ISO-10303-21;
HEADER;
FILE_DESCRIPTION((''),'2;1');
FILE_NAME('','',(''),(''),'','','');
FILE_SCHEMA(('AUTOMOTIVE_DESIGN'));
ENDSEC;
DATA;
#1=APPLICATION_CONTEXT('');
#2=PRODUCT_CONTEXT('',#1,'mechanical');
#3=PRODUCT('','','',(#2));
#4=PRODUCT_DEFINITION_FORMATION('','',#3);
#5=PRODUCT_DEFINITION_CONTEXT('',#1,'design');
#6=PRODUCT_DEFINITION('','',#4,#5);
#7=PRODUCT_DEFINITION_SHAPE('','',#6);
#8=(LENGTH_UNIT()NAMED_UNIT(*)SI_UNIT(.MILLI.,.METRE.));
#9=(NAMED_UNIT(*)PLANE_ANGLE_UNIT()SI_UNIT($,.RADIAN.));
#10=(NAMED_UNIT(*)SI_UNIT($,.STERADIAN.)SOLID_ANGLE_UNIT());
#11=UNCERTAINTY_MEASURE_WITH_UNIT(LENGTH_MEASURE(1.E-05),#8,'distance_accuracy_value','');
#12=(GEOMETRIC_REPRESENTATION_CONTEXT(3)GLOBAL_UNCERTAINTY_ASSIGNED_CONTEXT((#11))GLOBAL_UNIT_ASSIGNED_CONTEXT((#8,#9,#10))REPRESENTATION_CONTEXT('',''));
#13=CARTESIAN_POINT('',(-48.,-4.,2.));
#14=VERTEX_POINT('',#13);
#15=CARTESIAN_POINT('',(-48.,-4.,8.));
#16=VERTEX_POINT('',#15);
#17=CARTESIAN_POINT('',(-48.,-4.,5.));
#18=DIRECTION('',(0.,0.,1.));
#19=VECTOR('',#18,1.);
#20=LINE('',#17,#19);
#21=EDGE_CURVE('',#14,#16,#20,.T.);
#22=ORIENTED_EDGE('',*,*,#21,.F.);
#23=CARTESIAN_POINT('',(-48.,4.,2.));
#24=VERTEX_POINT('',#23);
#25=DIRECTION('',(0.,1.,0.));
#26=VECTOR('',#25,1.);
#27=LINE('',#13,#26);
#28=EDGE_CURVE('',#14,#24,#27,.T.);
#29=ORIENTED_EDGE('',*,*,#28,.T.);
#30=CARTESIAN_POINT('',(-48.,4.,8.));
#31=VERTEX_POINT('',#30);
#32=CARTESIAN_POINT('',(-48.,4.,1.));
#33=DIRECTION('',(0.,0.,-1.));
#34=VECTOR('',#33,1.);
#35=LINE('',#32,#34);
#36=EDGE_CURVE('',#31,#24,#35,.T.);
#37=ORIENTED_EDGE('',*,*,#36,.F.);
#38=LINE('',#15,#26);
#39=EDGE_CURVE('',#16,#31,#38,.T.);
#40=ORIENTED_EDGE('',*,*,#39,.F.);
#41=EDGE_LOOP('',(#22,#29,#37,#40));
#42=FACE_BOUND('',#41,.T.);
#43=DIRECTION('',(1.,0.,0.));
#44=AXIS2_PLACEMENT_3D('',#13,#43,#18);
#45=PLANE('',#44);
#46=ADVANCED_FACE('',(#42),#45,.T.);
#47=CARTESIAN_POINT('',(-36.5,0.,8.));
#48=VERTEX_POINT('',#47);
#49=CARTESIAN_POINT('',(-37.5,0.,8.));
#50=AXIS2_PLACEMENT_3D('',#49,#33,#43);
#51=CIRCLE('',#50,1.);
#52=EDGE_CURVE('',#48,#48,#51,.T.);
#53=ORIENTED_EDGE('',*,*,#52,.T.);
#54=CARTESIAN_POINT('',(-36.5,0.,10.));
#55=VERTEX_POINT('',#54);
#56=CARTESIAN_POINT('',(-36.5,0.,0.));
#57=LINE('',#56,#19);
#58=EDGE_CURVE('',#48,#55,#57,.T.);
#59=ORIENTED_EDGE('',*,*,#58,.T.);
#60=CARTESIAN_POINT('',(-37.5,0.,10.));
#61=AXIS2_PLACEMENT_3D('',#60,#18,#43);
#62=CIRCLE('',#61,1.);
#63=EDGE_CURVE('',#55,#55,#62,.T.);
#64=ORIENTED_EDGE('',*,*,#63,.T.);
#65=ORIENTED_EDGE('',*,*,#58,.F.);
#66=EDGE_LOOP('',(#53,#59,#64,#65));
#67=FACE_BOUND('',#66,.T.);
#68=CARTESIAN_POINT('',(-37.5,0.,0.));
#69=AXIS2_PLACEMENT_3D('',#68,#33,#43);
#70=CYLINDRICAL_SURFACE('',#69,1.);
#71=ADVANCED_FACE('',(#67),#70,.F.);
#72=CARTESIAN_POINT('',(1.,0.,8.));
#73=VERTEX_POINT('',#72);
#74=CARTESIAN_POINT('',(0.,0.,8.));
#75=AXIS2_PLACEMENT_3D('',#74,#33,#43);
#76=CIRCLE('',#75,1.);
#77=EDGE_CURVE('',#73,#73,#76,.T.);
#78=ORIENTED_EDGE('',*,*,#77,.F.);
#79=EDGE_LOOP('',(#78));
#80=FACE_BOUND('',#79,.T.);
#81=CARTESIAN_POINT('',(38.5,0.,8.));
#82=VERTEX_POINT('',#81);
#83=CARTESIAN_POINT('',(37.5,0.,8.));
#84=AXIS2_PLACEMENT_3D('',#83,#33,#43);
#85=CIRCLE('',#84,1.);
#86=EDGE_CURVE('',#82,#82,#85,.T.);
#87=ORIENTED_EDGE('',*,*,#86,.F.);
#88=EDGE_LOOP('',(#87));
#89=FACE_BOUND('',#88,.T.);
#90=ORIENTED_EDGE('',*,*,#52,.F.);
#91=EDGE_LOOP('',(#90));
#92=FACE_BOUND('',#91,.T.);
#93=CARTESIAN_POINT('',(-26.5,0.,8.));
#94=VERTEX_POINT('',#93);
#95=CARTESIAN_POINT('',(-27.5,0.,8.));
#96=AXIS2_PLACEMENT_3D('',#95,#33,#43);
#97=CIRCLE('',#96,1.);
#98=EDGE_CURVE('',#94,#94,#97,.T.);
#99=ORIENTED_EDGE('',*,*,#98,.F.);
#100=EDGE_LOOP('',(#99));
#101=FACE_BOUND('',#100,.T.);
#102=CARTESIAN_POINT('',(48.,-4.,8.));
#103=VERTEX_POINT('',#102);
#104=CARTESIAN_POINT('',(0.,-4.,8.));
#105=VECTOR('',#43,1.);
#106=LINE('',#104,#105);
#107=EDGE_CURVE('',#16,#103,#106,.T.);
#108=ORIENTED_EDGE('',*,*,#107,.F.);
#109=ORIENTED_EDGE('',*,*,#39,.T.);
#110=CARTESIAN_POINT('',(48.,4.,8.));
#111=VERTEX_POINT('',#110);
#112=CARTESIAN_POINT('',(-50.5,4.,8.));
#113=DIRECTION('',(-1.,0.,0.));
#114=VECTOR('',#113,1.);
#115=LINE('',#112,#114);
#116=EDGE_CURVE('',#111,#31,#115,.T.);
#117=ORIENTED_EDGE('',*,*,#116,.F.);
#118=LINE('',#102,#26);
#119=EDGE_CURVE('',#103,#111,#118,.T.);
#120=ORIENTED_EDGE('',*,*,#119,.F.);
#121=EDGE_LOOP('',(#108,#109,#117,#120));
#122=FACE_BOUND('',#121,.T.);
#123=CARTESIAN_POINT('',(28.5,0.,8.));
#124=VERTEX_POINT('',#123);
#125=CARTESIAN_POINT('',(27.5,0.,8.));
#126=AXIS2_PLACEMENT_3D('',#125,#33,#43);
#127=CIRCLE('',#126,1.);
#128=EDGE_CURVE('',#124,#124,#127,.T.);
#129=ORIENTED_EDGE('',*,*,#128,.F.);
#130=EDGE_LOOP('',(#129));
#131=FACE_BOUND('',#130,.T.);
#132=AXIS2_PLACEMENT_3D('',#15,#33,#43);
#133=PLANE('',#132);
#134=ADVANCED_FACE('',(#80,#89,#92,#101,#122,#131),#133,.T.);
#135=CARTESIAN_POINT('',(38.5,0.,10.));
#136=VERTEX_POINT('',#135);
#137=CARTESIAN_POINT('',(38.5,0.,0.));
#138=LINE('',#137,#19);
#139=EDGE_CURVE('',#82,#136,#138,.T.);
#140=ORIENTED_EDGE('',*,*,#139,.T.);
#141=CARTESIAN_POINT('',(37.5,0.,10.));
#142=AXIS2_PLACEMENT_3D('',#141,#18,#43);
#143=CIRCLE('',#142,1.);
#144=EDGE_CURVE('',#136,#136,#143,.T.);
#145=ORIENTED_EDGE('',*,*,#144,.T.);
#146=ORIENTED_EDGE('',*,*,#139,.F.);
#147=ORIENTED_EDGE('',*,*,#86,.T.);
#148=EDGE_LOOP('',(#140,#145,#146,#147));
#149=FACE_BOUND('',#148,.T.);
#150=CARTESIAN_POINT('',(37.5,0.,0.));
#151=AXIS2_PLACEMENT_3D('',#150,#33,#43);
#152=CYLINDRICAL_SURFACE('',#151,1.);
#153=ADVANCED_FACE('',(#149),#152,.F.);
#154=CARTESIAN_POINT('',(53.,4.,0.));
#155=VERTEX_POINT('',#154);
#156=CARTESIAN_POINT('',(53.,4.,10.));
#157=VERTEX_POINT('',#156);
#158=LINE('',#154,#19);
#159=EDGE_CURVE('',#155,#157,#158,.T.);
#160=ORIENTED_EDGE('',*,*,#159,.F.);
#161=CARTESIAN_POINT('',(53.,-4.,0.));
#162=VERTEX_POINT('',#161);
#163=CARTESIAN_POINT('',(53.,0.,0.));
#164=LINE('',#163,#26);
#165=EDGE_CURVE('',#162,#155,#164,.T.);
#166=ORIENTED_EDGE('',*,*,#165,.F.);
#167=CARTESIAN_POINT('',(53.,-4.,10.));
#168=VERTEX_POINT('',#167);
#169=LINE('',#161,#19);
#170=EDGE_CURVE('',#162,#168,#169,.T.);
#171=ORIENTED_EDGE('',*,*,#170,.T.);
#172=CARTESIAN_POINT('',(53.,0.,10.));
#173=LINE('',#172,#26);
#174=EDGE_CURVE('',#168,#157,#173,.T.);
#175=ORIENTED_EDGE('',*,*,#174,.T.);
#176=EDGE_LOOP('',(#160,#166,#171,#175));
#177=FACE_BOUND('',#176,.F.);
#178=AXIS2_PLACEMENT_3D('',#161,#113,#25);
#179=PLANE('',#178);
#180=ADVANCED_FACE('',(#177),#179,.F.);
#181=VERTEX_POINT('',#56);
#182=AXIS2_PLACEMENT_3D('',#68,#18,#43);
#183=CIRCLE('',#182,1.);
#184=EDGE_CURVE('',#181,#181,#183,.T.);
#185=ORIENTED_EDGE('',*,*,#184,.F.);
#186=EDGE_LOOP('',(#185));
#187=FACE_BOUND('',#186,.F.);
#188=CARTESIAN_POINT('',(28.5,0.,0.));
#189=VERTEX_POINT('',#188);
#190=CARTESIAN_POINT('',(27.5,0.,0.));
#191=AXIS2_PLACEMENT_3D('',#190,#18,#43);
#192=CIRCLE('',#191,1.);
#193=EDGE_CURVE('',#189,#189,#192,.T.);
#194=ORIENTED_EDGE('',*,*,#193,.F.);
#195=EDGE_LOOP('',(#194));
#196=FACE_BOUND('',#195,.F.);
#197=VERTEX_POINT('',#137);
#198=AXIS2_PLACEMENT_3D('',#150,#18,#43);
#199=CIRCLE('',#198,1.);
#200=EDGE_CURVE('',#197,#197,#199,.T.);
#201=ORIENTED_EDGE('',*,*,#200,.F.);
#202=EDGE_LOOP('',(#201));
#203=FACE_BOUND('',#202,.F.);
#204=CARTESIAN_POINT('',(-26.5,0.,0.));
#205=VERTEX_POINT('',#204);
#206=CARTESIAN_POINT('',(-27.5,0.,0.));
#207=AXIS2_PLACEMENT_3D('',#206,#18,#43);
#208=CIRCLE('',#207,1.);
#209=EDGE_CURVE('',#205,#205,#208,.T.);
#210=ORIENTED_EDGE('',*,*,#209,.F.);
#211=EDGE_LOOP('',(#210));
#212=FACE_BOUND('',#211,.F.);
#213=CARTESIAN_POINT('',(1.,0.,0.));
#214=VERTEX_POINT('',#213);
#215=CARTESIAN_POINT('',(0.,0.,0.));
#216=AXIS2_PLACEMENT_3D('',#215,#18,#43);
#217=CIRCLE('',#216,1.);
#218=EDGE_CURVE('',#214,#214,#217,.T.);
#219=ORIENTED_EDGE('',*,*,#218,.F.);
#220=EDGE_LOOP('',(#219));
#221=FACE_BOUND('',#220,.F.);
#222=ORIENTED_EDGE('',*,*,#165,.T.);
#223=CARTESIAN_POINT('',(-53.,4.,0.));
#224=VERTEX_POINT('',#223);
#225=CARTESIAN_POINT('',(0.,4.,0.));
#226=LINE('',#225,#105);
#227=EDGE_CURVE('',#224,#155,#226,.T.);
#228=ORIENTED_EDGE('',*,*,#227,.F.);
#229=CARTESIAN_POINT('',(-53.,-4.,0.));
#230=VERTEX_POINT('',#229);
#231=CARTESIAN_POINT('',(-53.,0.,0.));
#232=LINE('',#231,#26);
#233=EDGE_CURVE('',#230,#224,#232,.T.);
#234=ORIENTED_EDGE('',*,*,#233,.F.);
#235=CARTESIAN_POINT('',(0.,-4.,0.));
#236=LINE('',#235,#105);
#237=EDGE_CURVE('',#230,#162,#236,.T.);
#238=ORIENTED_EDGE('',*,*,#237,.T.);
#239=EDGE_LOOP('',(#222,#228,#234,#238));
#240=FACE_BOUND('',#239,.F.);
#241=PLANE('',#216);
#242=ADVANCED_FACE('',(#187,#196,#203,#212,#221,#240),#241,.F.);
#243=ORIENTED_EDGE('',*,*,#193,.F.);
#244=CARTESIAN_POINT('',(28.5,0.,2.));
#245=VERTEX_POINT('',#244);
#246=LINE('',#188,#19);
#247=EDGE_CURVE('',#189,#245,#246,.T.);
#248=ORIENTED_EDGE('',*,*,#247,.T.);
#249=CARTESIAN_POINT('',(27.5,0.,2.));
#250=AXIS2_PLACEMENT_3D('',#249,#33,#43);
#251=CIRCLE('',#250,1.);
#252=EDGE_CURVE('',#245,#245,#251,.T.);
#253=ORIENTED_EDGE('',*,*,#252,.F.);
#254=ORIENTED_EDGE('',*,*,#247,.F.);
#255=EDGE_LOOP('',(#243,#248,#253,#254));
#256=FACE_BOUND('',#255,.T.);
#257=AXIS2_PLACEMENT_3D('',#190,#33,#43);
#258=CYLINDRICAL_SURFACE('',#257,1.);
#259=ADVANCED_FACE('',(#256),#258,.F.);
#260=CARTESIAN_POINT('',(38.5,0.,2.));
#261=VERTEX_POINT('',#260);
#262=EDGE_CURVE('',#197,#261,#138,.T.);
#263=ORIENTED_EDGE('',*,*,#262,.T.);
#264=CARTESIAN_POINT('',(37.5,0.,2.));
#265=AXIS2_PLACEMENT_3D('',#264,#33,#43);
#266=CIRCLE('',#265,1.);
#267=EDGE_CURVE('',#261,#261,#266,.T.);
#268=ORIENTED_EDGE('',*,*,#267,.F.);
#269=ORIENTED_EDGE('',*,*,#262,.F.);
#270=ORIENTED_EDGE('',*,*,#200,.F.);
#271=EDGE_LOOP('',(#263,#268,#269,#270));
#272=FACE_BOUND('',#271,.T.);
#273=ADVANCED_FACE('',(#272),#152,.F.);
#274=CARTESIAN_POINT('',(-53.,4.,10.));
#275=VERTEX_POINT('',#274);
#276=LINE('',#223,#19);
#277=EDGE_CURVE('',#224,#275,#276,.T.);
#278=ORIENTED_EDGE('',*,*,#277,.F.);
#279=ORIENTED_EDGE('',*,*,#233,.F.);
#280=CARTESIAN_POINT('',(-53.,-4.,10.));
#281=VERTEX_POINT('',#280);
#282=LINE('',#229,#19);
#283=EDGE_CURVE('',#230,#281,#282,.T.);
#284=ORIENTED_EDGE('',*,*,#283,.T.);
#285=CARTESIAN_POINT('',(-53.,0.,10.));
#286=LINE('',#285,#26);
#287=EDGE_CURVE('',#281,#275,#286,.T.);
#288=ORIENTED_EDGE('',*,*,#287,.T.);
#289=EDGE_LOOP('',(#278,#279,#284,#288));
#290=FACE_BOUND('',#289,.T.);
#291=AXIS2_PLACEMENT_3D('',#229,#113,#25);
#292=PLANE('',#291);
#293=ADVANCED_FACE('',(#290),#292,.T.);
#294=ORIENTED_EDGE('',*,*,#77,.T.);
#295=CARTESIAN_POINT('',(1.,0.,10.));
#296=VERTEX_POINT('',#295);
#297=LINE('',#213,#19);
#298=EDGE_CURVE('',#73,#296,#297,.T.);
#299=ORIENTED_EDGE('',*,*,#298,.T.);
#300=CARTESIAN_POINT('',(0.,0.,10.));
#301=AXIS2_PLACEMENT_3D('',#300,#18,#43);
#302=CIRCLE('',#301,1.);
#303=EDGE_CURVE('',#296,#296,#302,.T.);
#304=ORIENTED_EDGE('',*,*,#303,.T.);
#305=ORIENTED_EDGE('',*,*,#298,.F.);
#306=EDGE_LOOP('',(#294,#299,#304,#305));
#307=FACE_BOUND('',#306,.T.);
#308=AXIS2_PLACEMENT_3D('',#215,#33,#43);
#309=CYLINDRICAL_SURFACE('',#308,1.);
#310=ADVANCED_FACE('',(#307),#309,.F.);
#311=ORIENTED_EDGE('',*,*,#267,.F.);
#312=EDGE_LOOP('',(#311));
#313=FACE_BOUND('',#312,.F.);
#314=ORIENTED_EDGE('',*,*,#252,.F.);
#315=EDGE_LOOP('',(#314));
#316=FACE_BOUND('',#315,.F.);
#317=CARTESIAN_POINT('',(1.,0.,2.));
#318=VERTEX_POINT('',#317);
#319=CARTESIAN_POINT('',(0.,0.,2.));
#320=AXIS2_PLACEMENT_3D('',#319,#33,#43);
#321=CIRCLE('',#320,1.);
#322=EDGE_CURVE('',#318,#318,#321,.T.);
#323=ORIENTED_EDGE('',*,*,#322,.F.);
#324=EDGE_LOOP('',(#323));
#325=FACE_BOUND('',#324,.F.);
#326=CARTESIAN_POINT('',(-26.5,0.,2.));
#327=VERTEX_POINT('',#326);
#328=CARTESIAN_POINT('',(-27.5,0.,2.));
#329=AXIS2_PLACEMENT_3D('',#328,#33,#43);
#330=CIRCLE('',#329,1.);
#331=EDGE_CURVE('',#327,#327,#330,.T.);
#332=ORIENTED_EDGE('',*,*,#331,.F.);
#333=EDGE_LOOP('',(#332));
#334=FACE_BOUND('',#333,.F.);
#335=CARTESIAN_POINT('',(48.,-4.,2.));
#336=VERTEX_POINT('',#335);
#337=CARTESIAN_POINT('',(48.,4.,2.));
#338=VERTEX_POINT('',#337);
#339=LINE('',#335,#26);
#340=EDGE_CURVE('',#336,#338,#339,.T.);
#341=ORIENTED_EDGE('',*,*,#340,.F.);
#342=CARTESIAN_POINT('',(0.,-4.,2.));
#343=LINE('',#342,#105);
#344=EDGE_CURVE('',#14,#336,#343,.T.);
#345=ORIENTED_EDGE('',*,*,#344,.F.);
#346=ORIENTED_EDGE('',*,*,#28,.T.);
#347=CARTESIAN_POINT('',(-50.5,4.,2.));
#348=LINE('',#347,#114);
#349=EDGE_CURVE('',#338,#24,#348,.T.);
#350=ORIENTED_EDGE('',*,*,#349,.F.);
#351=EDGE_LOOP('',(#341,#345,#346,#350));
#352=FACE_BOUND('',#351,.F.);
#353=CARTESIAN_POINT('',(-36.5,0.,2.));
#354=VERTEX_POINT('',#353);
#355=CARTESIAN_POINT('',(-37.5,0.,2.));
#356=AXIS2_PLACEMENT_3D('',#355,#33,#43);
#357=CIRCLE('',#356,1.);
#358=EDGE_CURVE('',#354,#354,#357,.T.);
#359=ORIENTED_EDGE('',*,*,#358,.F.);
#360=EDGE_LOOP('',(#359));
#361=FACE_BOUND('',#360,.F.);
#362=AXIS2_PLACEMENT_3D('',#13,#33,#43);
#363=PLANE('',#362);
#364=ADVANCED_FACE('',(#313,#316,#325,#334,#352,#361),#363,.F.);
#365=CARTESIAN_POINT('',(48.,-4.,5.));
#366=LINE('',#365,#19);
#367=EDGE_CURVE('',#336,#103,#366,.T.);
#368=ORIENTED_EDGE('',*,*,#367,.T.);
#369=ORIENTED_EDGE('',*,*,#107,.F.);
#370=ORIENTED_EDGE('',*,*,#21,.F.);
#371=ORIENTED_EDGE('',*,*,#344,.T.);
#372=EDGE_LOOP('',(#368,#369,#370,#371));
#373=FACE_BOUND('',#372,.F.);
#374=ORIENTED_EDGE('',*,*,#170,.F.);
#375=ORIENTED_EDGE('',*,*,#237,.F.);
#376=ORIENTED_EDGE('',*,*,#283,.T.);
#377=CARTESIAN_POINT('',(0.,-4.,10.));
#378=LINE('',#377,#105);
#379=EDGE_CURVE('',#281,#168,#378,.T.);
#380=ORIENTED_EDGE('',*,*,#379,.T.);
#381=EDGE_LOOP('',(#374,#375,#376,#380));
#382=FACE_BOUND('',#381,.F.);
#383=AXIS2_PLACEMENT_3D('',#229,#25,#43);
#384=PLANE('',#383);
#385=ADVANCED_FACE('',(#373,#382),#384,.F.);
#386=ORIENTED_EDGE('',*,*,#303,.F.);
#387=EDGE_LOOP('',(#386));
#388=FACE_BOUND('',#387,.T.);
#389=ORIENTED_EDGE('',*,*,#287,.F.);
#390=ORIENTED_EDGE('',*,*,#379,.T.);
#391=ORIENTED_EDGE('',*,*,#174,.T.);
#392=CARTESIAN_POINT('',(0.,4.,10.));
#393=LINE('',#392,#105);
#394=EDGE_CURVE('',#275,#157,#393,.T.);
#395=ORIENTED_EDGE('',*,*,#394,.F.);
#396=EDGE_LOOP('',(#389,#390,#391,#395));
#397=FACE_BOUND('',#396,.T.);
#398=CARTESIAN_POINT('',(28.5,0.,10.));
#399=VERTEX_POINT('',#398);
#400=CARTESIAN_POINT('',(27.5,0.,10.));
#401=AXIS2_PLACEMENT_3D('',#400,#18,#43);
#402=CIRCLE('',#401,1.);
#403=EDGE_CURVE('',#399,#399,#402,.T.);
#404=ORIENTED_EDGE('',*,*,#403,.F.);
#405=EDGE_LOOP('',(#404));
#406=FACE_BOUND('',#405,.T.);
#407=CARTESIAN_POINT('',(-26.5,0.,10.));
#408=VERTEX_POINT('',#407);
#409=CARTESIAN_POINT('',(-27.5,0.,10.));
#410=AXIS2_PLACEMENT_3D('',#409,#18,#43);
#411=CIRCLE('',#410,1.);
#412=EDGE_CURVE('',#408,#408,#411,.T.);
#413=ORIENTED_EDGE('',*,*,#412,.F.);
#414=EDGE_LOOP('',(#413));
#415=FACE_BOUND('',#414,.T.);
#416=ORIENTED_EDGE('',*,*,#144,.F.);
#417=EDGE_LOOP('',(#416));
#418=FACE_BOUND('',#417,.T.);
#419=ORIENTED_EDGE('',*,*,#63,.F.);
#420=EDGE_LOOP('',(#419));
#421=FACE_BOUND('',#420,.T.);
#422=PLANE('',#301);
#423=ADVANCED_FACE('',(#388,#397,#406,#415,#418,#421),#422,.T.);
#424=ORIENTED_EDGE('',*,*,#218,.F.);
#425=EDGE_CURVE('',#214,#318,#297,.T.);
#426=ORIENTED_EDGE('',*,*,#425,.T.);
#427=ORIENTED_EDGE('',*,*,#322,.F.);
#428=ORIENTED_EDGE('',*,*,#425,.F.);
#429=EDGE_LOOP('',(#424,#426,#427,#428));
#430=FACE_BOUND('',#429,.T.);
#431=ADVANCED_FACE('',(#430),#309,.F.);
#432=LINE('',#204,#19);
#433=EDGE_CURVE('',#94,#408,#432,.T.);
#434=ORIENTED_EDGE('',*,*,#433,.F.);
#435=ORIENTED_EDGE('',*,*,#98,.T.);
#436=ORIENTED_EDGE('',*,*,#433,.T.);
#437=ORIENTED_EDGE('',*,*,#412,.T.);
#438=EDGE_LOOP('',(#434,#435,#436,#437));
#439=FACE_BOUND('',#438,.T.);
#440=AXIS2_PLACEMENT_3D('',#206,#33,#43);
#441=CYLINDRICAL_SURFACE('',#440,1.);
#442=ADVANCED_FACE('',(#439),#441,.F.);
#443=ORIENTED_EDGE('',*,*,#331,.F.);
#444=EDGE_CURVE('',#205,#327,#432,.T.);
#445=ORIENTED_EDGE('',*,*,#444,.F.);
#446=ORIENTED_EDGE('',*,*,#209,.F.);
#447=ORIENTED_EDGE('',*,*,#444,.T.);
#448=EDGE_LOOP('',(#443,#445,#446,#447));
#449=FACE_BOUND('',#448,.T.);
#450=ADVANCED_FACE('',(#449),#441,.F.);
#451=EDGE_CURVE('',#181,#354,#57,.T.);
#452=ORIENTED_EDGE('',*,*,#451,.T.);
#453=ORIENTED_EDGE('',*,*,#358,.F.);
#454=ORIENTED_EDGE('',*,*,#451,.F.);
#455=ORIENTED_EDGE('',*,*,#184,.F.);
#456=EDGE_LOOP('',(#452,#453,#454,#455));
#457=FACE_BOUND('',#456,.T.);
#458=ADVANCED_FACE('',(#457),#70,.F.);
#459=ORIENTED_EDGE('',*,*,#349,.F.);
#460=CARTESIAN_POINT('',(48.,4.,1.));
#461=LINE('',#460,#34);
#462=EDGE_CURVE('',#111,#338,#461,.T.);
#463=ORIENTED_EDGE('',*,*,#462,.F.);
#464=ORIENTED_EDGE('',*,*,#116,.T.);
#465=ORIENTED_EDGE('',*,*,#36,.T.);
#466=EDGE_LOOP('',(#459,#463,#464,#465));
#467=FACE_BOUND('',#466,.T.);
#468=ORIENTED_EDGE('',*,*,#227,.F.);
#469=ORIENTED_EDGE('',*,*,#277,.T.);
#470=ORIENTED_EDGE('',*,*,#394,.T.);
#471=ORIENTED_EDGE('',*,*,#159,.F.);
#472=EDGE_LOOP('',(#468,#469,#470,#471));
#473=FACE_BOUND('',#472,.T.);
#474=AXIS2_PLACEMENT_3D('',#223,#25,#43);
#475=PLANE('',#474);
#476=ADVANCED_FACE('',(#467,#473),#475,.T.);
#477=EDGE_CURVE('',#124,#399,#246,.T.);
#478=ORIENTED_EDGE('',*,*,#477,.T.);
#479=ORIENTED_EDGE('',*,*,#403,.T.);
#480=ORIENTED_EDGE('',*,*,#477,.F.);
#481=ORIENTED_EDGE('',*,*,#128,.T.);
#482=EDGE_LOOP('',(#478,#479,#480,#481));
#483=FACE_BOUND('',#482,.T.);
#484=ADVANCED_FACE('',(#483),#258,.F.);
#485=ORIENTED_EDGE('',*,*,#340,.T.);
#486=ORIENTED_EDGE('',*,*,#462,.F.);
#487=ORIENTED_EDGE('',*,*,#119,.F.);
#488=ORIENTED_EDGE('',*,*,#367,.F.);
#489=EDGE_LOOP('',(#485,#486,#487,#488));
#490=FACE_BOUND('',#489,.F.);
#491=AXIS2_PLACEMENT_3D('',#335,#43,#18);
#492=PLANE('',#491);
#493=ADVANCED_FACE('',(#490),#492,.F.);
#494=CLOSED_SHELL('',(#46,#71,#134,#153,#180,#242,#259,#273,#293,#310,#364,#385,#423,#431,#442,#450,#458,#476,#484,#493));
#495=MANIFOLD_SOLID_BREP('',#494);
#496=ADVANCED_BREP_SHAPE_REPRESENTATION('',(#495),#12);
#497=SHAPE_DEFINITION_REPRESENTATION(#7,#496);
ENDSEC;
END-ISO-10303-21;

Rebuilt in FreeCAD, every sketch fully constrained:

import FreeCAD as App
import Part
import Sketcher

doc = App.newDocument("Part")
body = doc.addObject("PartDesign::Body", "Body")

# Sketch on XY plane
sketch1 = body.newObject("Sketcher::SketchObject", "Sketch")
sketch1.AttachmentSupport = (doc.getObject("XY_Plane"), [""])
sketch1.MapMode = "FlatFace"
sketch1.addGeometry([
    Part.LineSegment(App.Vector(-53, 4, 0), App.Vector(-53, -4, 0)),  # 0
    Part.LineSegment(App.Vector(-53, -4, 0), App.Vector(53, -4, 0)),  # 1
    Part.LineSegment(App.Vector(53, -4, 0), App.Vector(53, 4, 0)),  # 2
    Part.LineSegment(App.Vector(53, 4, 0), App.Vector(-53, 4, 0)),  # 3
    Part.Circle(App.Vector(-37.5, 0, 0), App.Vector(0, 0, 1), 1),  # 4
    Part.Circle(App.Vector(-27.5, 0, 0), App.Vector(0, 0, 1), 1),  # 5
    Part.Circle(App.Vector(0, 0, 0), App.Vector(0, 0, 1), 1),  # 6
    Part.Circle(App.Vector(27.5, 0, 0), App.Vector(0, 0, 1), 1),  # 7
    Part.Circle(App.Vector(37.5, 0, 0), App.Vector(0, 0, 1), 1),  # 8
], False)
sketch1.addConstraint([
    Sketcher.Constraint("Coincident", 0, 2, 1, 1),
    Sketcher.Constraint("Coincident", 1, 2, 2, 1),
    Sketcher.Constraint("Coincident", 2, 2, 3, 1),
    Sketcher.Constraint("Coincident", 3, 2, 0, 1),
    Sketcher.Constraint("Vertical", 0),
    Sketcher.Constraint("Horizontal", 1),
    Sketcher.Constraint("Vertical", 2),
    Sketcher.Constraint("Horizontal", 3),
    Sketcher.Constraint("Coincident", 6, 3, -1, 1),
    Sketcher.Constraint("Equal", 4, 5),
    Sketcher.Constraint("Equal", 5, 6),
    Sketcher.Constraint("Equal", 6, 7),
    Sketcher.Constraint("Equal", 7, 8),
    Sketcher.Constraint("Symmetric", 5, 3, 7, 3, -1, 1),
    Sketcher.Constraint("Symmetric", 4, 3, 8, 3, -1, 1),
    Sketcher.Constraint("Symmetric", 0, 2, 2, 2, -1, 1),
    Sketcher.Constraint("PointOnObject", 4, 3, -1),
    Sketcher.Constraint("PointOnObject", 5, 3, -1),
    Sketcher.Constraint("Diameter", 4, 2.0),
    Sketcher.Constraint("DistanceX", 1, 1, 1, 2, 106.0),
    Sketcher.Constraint("DistanceY", 0, 2, 0, 1, 8.0),
    Sketcher.Constraint("DistanceX", 4, 3, 5, 3, 10.0),
    Sketcher.Constraint("DistanceX", 5, 3, 7, 3, 55.0),
])
pad1 = body.newObject("PartDesign::Pad", "Pad")
pad1.Profile = sketch1
pad1.Length = 10

# Sketch on XZ plane
sketch2 = body.newObject("Sketcher::SketchObject", "Sketch001")
sketch2.AttachmentSupport = (doc.getObject("XZ_Plane"), [""])
sketch2.MapMode = "FlatFace"
sketch2.AttachmentOffset = App.Placement(App.Vector(0, 0, 4), App.Rotation())
sketch2.addGeometry([
    Part.LineSegment(App.Vector(-48, 8, 0), App.Vector(-48, 2, 0)),
    Part.LineSegment(App.Vector(-48, 2, 0), App.Vector(48, 2, 0)),
    Part.LineSegment(App.Vector(48, 2, 0), App.Vector(48, 8, 0)),
    Part.LineSegment(App.Vector(48, 8, 0), App.Vector(-48, 8, 0)),
], False)
sketch2.addConstraint([
    Sketcher.Constraint("Coincident", 0, 2, 1, 1),
    Sketcher.Constraint("Coincident", 1, 2, 2, 1),
    Sketcher.Constraint("Coincident", 2, 2, 3, 1),
    Sketcher.Constraint("Coincident", 3, 2, 0, 1),
    Sketcher.Constraint("Vertical", 0),
    Sketcher.Constraint("Horizontal", 1),
    Sketcher.Constraint("Vertical", 2),
    Sketcher.Constraint("Horizontal", 3),
    Sketcher.Constraint("DistanceX", 1, 1, 1, 2, 96.0),
    Sketcher.Constraint("DistanceY", 0, 2, 0, 1, 6.0),
    Sketcher.Constraint("DistanceX", 0, 2, -1, 1, 48.0),
    Sketcher.Constraint("DistanceY", -1, 1, 0, 2, 2.0),
])
pocket1 = body.newObject("PartDesign::Pocket", "Pocket")
pocket1.Profile = sketch2
pocket1.Length = 25

doc.recompute()
